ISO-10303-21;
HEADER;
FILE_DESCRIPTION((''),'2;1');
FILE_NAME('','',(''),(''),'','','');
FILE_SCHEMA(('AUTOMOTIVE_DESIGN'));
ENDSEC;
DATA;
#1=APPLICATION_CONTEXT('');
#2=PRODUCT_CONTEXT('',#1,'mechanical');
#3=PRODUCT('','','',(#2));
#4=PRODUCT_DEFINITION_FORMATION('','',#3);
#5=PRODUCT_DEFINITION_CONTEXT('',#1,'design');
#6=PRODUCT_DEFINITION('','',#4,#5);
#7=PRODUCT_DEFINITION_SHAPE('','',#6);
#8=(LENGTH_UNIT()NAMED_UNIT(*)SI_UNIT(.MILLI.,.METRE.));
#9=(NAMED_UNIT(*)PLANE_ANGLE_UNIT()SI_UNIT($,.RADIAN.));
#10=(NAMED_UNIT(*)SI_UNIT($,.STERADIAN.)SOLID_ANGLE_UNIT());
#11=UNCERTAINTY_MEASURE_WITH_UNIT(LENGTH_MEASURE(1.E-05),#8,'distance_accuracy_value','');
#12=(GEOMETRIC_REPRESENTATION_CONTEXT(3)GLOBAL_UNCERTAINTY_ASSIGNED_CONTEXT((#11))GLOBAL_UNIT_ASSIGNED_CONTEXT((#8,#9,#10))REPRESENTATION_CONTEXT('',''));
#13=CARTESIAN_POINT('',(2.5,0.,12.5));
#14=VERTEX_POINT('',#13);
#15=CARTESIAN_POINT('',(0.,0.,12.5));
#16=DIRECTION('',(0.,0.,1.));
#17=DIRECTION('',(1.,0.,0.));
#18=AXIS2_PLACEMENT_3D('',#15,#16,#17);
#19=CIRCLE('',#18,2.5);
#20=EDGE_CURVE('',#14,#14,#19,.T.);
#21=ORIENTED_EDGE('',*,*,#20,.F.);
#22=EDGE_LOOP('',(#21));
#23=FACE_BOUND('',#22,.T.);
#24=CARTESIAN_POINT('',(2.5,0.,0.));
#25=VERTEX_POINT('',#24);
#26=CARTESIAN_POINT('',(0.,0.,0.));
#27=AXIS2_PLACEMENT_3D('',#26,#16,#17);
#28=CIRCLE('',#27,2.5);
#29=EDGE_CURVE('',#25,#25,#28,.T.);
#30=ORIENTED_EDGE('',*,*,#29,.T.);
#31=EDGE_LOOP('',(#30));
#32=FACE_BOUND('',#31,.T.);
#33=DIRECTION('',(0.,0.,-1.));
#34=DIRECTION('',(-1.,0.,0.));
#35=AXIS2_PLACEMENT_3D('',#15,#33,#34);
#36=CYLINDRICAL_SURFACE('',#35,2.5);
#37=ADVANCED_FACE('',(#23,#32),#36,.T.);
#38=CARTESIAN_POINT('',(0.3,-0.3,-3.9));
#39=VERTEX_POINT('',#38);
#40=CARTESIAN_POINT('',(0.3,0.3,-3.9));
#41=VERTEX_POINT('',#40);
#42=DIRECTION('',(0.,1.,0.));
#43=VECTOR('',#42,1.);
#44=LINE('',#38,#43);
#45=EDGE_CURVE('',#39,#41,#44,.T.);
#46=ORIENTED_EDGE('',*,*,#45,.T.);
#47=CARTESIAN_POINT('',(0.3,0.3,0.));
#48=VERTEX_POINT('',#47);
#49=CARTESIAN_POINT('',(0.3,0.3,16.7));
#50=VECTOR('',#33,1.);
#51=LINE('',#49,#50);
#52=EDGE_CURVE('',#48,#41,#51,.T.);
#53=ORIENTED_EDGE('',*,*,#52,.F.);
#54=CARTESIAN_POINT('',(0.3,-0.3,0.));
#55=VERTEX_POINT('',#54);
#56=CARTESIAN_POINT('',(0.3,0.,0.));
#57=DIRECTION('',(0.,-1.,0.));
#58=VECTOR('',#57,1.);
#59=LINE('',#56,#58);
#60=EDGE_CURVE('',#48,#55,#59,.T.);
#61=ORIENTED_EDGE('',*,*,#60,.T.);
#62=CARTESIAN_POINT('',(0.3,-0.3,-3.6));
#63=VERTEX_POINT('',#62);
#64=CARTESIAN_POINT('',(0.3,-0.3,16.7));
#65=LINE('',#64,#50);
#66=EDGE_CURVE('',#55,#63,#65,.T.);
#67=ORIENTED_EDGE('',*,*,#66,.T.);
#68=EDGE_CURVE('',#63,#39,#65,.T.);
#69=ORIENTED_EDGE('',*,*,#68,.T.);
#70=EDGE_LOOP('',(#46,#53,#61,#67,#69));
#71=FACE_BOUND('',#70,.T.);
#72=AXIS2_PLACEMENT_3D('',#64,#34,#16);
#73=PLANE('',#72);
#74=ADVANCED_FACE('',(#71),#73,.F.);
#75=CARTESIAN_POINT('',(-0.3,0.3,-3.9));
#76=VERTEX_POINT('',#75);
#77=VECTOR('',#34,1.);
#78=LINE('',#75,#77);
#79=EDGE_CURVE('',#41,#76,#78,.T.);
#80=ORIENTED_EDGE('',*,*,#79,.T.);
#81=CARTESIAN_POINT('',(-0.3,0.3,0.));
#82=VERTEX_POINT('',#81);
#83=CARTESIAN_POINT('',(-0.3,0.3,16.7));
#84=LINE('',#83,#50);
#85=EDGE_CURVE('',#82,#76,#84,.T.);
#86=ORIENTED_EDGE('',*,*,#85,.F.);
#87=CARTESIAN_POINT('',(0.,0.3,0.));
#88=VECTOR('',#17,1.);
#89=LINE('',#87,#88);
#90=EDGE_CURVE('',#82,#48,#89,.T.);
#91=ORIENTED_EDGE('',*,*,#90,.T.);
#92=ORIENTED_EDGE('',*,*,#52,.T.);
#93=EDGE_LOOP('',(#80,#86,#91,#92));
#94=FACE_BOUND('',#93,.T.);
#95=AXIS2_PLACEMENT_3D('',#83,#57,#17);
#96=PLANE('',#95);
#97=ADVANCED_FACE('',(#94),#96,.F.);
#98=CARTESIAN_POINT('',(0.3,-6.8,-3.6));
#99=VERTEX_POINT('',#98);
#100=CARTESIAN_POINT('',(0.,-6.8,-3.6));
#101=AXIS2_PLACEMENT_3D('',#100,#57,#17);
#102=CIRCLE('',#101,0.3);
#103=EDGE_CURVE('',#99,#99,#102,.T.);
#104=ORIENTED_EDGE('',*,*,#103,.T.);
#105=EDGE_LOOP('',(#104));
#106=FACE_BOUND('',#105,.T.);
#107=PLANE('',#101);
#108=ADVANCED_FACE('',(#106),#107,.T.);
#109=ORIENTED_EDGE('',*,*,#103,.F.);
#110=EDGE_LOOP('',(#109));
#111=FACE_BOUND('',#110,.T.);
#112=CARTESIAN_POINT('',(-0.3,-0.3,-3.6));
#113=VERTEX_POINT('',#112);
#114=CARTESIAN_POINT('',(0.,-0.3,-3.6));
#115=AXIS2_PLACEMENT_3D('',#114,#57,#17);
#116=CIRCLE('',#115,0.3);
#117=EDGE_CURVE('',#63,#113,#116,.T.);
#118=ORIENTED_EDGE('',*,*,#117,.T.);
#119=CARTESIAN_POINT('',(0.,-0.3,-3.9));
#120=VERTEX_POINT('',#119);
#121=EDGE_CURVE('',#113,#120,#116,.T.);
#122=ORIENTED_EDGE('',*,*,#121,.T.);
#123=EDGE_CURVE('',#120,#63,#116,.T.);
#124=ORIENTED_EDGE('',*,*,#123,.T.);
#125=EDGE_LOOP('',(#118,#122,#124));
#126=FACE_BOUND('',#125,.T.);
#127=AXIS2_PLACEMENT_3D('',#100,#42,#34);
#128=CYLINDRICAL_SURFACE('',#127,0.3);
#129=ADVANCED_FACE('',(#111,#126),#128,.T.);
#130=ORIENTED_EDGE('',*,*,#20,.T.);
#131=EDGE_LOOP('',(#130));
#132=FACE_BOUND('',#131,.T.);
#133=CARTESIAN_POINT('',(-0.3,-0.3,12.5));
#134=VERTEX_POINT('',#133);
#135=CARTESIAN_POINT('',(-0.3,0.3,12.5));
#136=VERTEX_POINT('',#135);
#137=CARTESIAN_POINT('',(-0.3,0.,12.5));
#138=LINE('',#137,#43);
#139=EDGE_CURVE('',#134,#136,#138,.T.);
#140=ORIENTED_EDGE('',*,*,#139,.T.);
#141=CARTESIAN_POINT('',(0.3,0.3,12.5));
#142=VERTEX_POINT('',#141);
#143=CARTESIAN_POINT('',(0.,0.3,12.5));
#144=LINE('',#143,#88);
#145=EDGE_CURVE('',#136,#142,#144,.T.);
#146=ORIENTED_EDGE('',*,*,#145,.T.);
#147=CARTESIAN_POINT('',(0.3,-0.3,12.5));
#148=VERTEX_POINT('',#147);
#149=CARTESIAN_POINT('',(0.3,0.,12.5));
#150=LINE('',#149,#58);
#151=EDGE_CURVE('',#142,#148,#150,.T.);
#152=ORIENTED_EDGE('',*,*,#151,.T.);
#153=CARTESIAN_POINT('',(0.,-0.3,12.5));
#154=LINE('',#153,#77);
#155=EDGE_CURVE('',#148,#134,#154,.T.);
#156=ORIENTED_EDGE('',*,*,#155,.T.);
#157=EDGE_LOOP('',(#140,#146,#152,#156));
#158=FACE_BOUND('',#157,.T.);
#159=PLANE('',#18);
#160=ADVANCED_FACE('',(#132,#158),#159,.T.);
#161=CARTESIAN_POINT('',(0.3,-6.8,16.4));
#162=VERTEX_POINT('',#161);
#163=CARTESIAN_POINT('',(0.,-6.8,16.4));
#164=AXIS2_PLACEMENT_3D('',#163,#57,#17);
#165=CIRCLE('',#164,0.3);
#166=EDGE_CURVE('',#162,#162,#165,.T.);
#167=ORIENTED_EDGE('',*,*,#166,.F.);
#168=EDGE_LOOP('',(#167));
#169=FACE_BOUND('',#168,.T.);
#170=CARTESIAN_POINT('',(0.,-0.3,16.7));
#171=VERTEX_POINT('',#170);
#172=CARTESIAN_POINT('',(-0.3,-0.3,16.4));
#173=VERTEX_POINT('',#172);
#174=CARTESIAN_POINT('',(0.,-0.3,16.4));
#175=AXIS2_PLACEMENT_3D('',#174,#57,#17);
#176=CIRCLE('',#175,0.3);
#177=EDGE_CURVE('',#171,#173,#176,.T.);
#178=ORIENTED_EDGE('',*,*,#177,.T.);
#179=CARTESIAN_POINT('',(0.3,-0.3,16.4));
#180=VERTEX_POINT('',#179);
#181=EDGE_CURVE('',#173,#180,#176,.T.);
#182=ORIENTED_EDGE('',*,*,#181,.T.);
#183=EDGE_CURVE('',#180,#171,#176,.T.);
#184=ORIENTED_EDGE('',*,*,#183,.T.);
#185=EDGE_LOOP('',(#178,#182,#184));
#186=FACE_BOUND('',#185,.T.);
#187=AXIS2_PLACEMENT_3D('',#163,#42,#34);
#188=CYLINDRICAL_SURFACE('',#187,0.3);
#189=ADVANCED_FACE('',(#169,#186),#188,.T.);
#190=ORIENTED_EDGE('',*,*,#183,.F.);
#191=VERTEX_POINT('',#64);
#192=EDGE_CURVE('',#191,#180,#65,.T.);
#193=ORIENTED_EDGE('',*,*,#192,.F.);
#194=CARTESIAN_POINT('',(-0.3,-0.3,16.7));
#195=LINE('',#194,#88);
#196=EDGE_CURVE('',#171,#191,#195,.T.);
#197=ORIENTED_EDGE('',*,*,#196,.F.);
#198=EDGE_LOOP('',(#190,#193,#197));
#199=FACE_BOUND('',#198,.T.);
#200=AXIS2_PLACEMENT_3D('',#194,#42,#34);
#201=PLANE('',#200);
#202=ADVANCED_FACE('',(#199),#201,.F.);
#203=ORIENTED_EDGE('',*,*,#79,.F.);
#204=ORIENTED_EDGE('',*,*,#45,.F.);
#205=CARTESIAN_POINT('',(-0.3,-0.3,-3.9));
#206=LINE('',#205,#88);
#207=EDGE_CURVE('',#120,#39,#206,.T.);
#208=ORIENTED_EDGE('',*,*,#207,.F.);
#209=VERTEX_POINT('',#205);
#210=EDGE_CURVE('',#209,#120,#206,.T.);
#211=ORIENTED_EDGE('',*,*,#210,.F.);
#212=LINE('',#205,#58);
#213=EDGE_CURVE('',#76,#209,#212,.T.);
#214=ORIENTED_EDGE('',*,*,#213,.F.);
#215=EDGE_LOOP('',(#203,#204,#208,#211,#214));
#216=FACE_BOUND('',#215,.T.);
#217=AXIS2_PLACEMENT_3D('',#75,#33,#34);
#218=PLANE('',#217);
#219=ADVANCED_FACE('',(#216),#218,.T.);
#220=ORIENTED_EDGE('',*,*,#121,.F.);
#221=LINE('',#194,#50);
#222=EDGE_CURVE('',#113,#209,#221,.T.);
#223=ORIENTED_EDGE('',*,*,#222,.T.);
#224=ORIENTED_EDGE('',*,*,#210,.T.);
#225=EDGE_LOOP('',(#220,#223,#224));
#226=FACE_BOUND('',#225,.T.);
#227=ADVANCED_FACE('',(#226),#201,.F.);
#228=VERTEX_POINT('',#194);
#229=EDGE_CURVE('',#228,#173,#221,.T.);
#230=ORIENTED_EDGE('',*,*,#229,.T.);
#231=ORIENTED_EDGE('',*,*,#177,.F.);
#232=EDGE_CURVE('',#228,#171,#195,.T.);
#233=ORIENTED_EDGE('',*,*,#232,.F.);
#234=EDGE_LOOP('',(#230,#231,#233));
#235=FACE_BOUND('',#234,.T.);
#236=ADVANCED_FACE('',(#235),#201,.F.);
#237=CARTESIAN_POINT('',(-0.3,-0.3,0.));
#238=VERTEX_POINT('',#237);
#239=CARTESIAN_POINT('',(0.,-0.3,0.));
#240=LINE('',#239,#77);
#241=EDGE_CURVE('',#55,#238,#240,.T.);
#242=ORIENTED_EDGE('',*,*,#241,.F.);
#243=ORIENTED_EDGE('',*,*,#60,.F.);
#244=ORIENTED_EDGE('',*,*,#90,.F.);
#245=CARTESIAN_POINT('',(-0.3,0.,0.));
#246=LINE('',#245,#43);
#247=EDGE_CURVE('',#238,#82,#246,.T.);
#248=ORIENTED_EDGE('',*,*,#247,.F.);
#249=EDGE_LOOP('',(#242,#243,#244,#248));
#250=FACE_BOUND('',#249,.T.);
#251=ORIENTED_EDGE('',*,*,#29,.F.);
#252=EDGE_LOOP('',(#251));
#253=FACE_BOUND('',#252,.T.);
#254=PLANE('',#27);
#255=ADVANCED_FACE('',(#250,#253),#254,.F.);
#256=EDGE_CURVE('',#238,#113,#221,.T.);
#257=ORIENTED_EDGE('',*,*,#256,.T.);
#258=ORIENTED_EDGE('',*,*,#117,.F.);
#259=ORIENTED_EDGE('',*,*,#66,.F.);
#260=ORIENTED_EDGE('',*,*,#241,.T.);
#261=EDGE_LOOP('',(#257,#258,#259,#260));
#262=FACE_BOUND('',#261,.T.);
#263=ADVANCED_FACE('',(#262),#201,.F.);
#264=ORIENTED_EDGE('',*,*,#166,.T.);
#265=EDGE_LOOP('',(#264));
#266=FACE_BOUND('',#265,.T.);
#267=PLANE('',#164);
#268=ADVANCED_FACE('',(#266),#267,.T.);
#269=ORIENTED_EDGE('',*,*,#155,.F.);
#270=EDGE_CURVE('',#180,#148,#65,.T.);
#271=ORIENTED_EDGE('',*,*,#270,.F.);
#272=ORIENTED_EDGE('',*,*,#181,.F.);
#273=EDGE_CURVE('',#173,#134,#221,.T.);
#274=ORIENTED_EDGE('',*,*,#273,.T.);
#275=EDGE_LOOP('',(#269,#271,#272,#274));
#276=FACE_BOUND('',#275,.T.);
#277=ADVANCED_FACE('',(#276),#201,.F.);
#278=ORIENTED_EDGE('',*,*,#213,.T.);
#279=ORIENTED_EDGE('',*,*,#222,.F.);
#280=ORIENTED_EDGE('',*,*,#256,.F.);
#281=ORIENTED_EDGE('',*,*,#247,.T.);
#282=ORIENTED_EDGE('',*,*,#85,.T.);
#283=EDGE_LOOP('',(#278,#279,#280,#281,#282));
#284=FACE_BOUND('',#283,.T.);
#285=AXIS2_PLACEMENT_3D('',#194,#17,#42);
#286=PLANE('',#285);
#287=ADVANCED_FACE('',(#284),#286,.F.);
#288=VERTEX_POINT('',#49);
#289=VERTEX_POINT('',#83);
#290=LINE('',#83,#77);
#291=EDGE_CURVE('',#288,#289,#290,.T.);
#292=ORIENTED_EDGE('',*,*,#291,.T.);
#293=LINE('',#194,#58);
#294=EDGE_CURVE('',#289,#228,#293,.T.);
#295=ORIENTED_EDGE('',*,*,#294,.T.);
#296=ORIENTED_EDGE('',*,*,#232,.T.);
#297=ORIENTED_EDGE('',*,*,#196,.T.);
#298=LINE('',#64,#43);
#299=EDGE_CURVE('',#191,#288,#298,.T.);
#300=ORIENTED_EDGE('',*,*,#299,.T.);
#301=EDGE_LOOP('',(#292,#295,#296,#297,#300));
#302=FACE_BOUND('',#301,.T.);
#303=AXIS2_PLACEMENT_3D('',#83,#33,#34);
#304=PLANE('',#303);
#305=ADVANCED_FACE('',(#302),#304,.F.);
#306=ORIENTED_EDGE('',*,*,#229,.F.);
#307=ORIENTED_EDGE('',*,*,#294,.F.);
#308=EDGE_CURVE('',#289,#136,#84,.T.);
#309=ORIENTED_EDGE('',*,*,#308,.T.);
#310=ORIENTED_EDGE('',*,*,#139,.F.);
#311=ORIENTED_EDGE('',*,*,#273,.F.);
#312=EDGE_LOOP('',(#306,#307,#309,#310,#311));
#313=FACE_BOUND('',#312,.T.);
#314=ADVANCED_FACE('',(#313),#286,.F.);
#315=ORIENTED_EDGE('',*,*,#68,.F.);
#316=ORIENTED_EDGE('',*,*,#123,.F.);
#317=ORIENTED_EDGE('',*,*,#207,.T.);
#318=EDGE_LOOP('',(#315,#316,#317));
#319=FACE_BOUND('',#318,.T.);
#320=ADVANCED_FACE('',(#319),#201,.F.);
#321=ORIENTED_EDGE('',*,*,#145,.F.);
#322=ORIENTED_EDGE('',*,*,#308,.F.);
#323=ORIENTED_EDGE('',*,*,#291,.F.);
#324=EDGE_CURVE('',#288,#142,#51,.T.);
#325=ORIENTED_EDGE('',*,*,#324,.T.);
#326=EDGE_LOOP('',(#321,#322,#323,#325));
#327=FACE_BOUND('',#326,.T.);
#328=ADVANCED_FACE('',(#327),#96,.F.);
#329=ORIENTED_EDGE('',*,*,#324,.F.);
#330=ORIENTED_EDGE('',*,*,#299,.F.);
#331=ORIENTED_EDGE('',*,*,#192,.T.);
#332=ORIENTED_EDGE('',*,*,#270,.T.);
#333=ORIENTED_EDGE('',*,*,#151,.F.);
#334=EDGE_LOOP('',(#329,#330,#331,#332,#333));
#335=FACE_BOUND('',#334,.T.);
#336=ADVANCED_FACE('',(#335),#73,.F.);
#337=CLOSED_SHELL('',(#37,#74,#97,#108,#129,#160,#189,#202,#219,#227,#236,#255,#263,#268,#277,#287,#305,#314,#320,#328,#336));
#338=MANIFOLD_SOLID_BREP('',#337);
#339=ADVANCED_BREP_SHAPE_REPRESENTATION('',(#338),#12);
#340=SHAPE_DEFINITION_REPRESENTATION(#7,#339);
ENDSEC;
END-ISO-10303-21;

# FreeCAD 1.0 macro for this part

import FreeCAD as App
import Part
import Sketcher

doc = App.newDocument("Part")
body = doc.addObject("PartDesign::Body", "Body")

# Sketch on XY plane
sketch1 = body.newObject("Sketcher::SketchObject", "Sketch")
sketch1.AttachmentSupport = (doc.getObject("XY_Plane"), [""])
sketch1.MapMode = "FlatFace"
sketch1.addGeometry(Part.Circle(App.Vector(0, 0, 0), App.Vector(0, 0, 1), 2.5), False)
sketch1.addConstraint(Sketcher.Constraint("Coincident", 0, 3, -1, 1))
sketch1.addConstraint(Sketcher.Constraint("Diameter", 0, 5.0))
pad1 = body.newObject("PartDesign::Pad", "Pad")
pad1.Profile = sketch1
pad1.Length = 12.5

# Sketch on XY plane
sketch2 = body.newObject("Sketcher::SketchObject", "Sketch001")
sketch2.AttachmentSupport = (doc.getObject("XY_Plane"), [""])
sketch2.MapMode = "FlatFace"
sketch2.AttachmentOffset = App.Placement(App.Vector(0, 0, 12.5), App.Rotation())
sketch2.addGeometry(Part.LineSegment(App.Vector(-0.3, 0.3, 0), App.Vector(-0.3, -0.3, 0)), False)
sketch2.addGeometry(Part.LineSegment(App.Vector(-0.3, -0.3, 0), App.Vector(0.3, -0.3, 0)), False)
sketch2.addGeometry(Part.LineSegment(App.Vector(0.3, -0.3, 0), App.Vector(0.3, 0.3, 0)), False)
sketch2.addGeometry(Part.LineSegment(App.Vector(0.3, 0.3, 0), App.Vector(-0.3, 0.3, 0)), False)
sketch2.addConstraint(Sketcher.Constraint("Coincident", 0, 2, 1, 1))
sketch2.addConstraint(Sketcher.Constraint("Coincident", 1, 2, 2, 1))
sketch2.addConstraint(Sketcher.Constraint("Coincident", 2, 2, 3, 1))
sketch2.addConstraint(Sketcher.Constraint("Coincident", 3, 2, 0, 1))
sketch2.addConstraint(Sketcher.Constraint("Vertical", 0))
sketch2.addConstraint(Sketcher.Constraint("Horizontal", 1))
sketch2.addConstraint(Sketcher.Constraint("Vertical", 2))
sketch2.addConstraint(Sketcher.Constraint("Horizontal", 3))
sketch2.addConstraint(Sketcher.Constraint("Symmetric", 0, 2, 2, 2, -1, 1))
sketch2.addConstraint(Sketcher.Constraint("Equal", 3, 0))
sketch2.addConstraint(Sketcher.Constraint("DistanceX", 1, 1, 1, 2, 0.6))
pad2 = body.newObject("PartDesign::Pad", "Pad001")
pad2.Profile = sketch2
pad2.Type = "TwoLengths"
pad2.Length = 4.2
pad2.Length2 = 16.4

# Sketch on XZ plane
sketch3 = body.newObject("Sketcher::SketchObject", "Sketch002")
sketch3.AttachmentSupport = (doc.getObject("XZ_Plane"), [""])
sketch3.MapMode = "FlatFace"
sketch3.AttachmentOffset = App.Placement(App.Vector(0, 0, 0.3), App.Rotation())
sketch3.addGeometry(Part.Circle(App.Vector(0, 16.4, 0), App.Vector(0, 0, 1), 0.3), False)
sketch3.addGeometry(Part.Circle(App.Vector(0, -3.6, 0), App.Vector(0, 0, 1), 0.3), False)
sketch3.addConstraint(Sketcher.Constraint("Equal", 0, 1))
sketch3.addConstraint(Sketcher.Constraint("PointOnObject", 0, 3, -2))
sketch3.addConstraint(Sketcher.Constraint("PointOnObject", 1, 3, -2))
sketch3.addConstraint(Sketcher.Constraint("Diameter", 0, 0.6))
sketch3.addConstraint(Sketcher.Constraint("DistanceY", 1, 3, 0, 3, 20.0))
sketch3.addConstraint(Sketcher.Constraint("DistanceY", -1, 1, 0, 3, 16.4))
pad3 = body.newObject("PartDesign::Pad", "Pad002")
pad3.Profile = sketch3
pad3.Length = 6.5

doc.recompute()
